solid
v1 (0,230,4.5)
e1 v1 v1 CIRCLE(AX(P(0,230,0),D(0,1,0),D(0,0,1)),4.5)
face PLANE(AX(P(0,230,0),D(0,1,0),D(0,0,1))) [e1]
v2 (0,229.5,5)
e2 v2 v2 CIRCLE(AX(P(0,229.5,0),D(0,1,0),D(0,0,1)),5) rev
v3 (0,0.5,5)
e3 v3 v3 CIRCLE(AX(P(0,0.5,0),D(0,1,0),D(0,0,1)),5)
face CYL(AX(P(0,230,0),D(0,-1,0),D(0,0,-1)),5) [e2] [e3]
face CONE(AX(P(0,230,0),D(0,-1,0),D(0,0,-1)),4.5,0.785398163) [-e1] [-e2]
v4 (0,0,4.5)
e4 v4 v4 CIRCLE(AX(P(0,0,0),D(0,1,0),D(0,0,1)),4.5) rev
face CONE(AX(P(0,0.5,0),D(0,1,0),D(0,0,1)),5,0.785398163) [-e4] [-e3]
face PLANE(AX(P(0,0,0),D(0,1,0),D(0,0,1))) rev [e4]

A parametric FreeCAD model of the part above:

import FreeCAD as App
import Part
import Sketcher

V = App.Vector
Q = App.Units.Quantity


def edges_at(feature, points):
    """Names of the edges that pass closest to the given points."""
    edges = feature.Shape.Edges
    near = lambda p: min(range(len(edges)), key=lambda i: edges[i].distToShape(Part.Vertex(*p))[0])
    return sorted({f"Edge{near(p) + 1}" for p in points})

doc = App.newDocument("Part")
params = doc.addObject("Spreadsheet::Sheet", "Params")
for row, (alias, value) in enumerate([
    ("sketch1_diameter", "10 mm"),
    ("pad1_length", "230 mm"),
    ("chamfer_size", "0.5 mm"),
], start=1):
    params.set(f"A{row}", alias)
    params.set(f"B{row}", "=" + value)
    params.setAlias(f"B{row}", alias)

body = doc.addObject("PartDesign::Body", "Body")

# Sketch on XZ plane
sketch1 = doc.addObject("Sketcher::SketchObject", "Sketch")
body.addObject(sketch1)
sketch1.AttachmentSupport = (doc.XZ_Plane, [""])
sketch1.MapMode = "FlatFace"
sketch1.addGeometry(Part.Circle(V(0, 0, 0), V(0, 0, 1), 5), False)
sketch1.addConstraint(Sketcher.Constraint("Coincident", 0, 3, -1, 1))
sketch1.addConstraint(Sketcher.Constraint("Diameter", 0, Q("10 mm")))
sketch1.setExpression("Constraints[1]", "Params.sketch1_diameter")
pad1 = doc.addObject("PartDesign::Pad", "Pad")
body.addObject(pad1)
pad1.Profile = sketch1
pad1.setExpression("Length", "Params.pad1_length")
pad1.Reversed = True
doc.recompute()

chamfer = doc.addObject("PartDesign::Chamfer", "Chamfer")
body.addObject(chamfer)
chamfer.Base = (pad1, edges_at(pad1, [(-5, 0, 0), (-5, 230, 0)]))
chamfer.setExpression("Size", "Params.chamfer_size")

doc.recompute()
